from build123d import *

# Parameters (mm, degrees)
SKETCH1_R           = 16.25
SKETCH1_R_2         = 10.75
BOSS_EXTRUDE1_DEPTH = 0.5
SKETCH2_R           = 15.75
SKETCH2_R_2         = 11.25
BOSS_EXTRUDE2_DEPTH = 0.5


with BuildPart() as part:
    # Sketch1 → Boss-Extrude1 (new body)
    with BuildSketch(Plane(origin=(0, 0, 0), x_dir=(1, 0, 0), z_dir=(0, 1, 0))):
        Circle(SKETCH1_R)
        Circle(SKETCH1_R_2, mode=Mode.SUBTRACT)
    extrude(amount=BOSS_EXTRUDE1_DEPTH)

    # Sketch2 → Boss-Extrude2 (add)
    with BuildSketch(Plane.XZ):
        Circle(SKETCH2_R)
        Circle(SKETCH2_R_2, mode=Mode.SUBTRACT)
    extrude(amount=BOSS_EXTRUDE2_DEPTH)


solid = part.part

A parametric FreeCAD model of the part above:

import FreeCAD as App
import Part
import Sketcher
Q = App.Units.Quantity

doc = App.newDocument("Part")
body = doc.addObject("PartDesign::Body", "Body")

sketch1 = body.newObject("Sketcher::SketchObject", "Sketch")
sketch1.AttachmentSupport = (doc.getObject("XZ_Plane"), [""])
sketch1.MapMode = "FlatFace"
sketch1.addGeometry([
    Part.Circle(App.Vector(0, 0, 0), App.Vector(0, 0, 1), 16),
    Part.Circle(App.Vector(0, 0, 0), App.Vector(0, 0, 1), 11),
], False)
sketch1.addConstraint([
    Sketcher.Constraint("Coincident", 0, 3, -1, 1),
    Sketcher.Constraint("Coincident", 1, 3, -1, 1),
    Sketcher.Constraint("Diameter", 0, Q("32.5 mm")),
    Sketcher.Constraint("Diameter", 1, Q("21.5 mm")),
])
pad1 = body.newObject("PartDesign::Pad", "Pad")
pad1.Profile = sketch1
pad1.Length = 0.5
pad1.Reversed = True

sketch2 = body.newObject("Sketcher::SketchObject", "Sketch001")
sketch2.AttachmentSupport = (doc.getObject("XZ_Plane"), [""])
sketch2.MapMode = "FlatFace"
sketch2.addGeometry([
    Part.Circle(App.Vector(0, 0, 0), App.Vector(0, 0, 1), 16),
    Part.Circle(App.Vector(0, 0, 0), App.Vector(0, 0, 1), 11),
], False)
sketch2.addConstraint([
    Sketcher.Constraint("Coincident", 0, 3, -1, 1),
    Sketcher.Constraint("Coincident", 1, 3, -1, 1),
    Sketcher.Constraint("Diameter", 0, Q("31.5 mm")),
    Sketcher.Constraint("Diameter", 1, Q("22.5 mm")),
])
pad2 = body.newObject("PartDesign::Pad", "Pad001")
pad2.Profile = sketch2
pad2.Length = 0.5

doc.recompute()
